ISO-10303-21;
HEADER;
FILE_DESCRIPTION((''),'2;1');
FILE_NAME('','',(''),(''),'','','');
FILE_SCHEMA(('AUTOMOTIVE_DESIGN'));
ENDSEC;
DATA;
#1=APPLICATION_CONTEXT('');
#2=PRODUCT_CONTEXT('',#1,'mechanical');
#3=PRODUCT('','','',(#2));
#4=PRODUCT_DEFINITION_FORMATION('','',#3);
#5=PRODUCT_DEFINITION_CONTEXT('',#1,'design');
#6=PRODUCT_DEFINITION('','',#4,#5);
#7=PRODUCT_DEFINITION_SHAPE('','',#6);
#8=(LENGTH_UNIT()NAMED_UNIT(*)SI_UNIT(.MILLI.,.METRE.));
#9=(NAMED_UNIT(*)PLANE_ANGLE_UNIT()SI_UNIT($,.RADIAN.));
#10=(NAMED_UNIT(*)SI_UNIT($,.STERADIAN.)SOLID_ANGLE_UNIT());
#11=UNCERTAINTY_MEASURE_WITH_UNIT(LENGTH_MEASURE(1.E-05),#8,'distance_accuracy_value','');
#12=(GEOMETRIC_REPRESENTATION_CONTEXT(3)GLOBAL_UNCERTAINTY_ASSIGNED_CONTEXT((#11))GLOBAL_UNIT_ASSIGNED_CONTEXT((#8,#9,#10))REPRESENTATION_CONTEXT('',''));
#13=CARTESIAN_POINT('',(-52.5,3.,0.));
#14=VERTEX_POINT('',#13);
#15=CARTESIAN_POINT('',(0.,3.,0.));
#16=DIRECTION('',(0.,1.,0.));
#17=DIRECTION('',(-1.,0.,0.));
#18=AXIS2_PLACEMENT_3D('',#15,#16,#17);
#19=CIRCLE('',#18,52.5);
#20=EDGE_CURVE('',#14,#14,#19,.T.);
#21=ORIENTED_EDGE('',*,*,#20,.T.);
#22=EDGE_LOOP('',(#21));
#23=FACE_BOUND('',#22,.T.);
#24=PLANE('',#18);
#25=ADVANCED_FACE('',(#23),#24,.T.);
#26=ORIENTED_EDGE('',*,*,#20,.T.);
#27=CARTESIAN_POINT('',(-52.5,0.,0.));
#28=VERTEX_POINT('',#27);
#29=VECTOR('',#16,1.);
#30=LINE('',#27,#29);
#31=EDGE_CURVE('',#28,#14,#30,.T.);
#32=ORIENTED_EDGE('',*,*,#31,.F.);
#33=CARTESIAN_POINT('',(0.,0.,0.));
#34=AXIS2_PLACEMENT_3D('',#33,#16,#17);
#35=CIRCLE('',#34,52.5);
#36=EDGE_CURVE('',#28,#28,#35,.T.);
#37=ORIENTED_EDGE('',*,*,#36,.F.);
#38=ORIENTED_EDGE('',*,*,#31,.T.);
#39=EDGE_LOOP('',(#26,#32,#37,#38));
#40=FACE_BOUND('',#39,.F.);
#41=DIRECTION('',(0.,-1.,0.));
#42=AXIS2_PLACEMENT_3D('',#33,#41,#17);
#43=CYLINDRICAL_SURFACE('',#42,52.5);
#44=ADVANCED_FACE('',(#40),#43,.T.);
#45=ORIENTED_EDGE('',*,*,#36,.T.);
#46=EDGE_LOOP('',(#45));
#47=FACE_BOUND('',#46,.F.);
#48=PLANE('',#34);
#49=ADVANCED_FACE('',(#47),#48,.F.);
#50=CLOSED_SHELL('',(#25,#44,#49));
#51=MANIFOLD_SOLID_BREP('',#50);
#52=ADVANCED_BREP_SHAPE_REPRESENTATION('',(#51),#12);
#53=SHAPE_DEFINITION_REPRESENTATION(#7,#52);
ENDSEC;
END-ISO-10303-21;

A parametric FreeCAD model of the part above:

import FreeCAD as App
import Part
import Sketcher

doc = App.newDocument("Part")
body = doc.addObject("PartDesign::Body", "Body")

sketch1 = doc.addObject("Sketcher::SketchObject", "Sketch")
body.addObject(sketch1)
sketch1.AttachmentSupport = (doc.XZ_Plane, [""])
sketch1.MapMode = "FlatFace"
sketch1.addGeometry(Part.Circle(App.Vector(0, 0, 0), App.Vector(0, 0, 1), 52.5), False)
sketch1.addConstraint([
    Sketcher.Constraint("Coincident", 0, 3, -1, 1),
    Sketcher.Constraint("Diameter", 0, 105.0),
])
pad1 = doc.addObject("PartDesign::Pad", "Pad")
body.addObject(pad1)
pad1.Profile = sketch1
pad1.Length = 3
pad1.Reversed = True

doc.recompute()
